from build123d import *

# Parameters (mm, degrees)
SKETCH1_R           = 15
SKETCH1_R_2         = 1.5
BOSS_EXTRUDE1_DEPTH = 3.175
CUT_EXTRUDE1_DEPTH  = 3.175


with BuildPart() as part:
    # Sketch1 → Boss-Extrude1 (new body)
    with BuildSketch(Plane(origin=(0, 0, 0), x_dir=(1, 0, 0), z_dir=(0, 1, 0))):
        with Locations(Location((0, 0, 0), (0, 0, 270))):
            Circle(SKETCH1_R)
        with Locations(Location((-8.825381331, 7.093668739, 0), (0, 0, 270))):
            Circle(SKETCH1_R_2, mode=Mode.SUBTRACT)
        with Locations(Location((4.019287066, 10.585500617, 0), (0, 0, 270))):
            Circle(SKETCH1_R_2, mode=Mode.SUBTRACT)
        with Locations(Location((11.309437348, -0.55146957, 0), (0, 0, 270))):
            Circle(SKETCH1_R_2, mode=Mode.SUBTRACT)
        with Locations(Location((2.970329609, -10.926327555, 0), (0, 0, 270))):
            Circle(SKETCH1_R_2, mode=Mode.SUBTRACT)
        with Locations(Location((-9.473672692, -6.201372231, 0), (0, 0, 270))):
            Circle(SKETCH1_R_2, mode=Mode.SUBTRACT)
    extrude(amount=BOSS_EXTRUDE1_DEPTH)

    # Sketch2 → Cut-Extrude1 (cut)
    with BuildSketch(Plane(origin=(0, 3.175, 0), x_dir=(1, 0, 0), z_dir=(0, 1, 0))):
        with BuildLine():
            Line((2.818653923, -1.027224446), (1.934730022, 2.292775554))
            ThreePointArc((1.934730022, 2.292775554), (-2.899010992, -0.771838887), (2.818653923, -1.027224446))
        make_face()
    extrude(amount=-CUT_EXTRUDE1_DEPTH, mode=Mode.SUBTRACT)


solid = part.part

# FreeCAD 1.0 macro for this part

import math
import FreeCAD as App
import Part
import Sketcher

V = App.Vector
Q = App.Units.Quantity

doc = App.newDocument("Part")
body = doc.addObject("PartDesign::Body", "Body")

# Sketch on XZ plane
sketch1 = doc.addObject("Sketcher::SketchObject", "Sketch")
body.addObject(sketch1)
sketch1.AttachmentSupport = (doc.XZ_Plane, [""])
sketch1.MapMode = "FlatFace"
sketch1.addGeometry(Part.Circle(V(0, 0, 0), V(0, 0, 1), 15), False)
sketch1.addGeometry(Part.Circle(V(-8.8, -7.1, 0), V(0, 0, 1), 1.5), False)
sketch1.addGeometry(Part.Circle(V(-9.5, 6.2, 0), V(0, 0, 1), 1.5), False)
sketch1.addGeometry(Part.Circle(V(4, -10.6, 0), V(0, 0, 1), 1.5), False)
sketch1.addGeometry(Part.Circle(V(3, 10.9, 0), V(0, 0, 1), 1.5), False)
sketch1.addGeometry(Part.Circle(V(11.3, 0.6, 0), V(0, 0, 1), 1.5), False)
sketch1.addConstraint(Sketcher.Constraint("Coincident", 0, 3, -1, 1))
sketch1.addConstraint(Sketcher.Constraint("Equal", 1, 2))
sketch1.addConstraint(Sketcher.Constraint("Equal", 2, 3))
sketch1.addConstraint(Sketcher.Constraint("Equal", 3, 4))
sketch1.addConstraint(Sketcher.Constraint("Equal", 4, 5))
sketch1.addConstraint(Sketcher.Constraint("Diameter", 0, Q("30 mm")))
sketch1.addConstraint(Sketcher.Constraint("Diameter", 1, Q("3 mm")))
sketch1.addConstraint(Sketcher.Constraint("DistanceY", 3, 3, -1, 1, Q("10.585501 mm")))
sketch1.addConstraint(Sketcher.Constraint("DistanceX", 1, 3, -1, 1, Q("8.825381 mm")))
sketch1.addConstraint(Sketcher.Constraint("DistanceY", 1, 3, -1, 1, Q("7.093669 mm")))
sketch1.addConstraint(Sketcher.Constraint("DistanceX", -1, 1, 4, 3, Q("2.97033 mm")))
sketch1.addConstraint(Sketcher.Constraint("DistanceY", -1, 1, 5, 3, Q("0.55147 mm")))
sketch1.addConstraint(Sketcher.Constraint("DistanceX", 2, 3, 1, 3, Q("0.648291 mm")))
sketch1.addConstraint(Sketcher.Constraint("DistanceY", 1, 3, 2, 3, Q("13.295041 mm")))
sketch1.addConstraint(Sketcher.Constraint("DistanceX", 1, 3, 3, 3, Q("12.844668 mm")))
sketch1.addConstraint(Sketcher.Constraint("DistanceY", 3, 3, 4, 3, Q("21.511828 mm")))
sketch1.addConstraint(Sketcher.Constraint("DistanceX", 3, 3, 5, 3, Q("7.29015 mm")))
pad1 = doc.addObject("PartDesign::Pad", "Pad")
body.addObject(pad1)
pad1.Profile = sketch1
pad1.Length = 3.175
pad1.Reversed = True

# Sketch on XZ plane
sketch2 = doc.addObject("Sketcher::SketchObject", "Sketch001")
body.addObject(sketch2)
sketch2.AttachmentSupport = (doc.XZ_Plane, [""])
sketch2.MapMode = "FlatFace"
sketch2.AttachmentOffset = App.Placement(V(0, 0, -3.175), App.Rotation())
sketch2.addGeometry(Part.LineSegment(V(2.8, 1, 0), V(1.9, -2.3, 0)), False)
sketch2.addGeometry(Part.ArcOfCircle(Part.Circle(V(0, 0, 0), V(0, 0, 1), 3), math.radians(20), math.radians(310)), False)
sketch2.addConstraint(Sketcher.Constraint("Coincident", 0, 1, 1, 1))
sketch2.addConstraint(Sketcher.Constraint("Coincident", 1, 2, 0, 2))
sketch2.addConstraint(Sketcher.Constraint("Coincident", 1, 3, -1, 1))
sketch2.addConstraint(Sketcher.Constraint("Radius", 1, Q("3 mm")))
sketch2.addConstraint(Sketcher.Constraint("DistanceY", 1, 2, 0, 1, Q("3.32 mm")))
sketch2.addConstraint(Sketcher.Constraint("DistanceX", -1, 1, 1, 2, Q("1.93473 mm")))
pocket1 = doc.addObject("PartDesign::Pocket", "Pocket")
body.addObject(pocket1)
pocket1.Profile = sketch2
pocket1.Length = 3.175
pocket1.Reversed = True

doc.recompute()
